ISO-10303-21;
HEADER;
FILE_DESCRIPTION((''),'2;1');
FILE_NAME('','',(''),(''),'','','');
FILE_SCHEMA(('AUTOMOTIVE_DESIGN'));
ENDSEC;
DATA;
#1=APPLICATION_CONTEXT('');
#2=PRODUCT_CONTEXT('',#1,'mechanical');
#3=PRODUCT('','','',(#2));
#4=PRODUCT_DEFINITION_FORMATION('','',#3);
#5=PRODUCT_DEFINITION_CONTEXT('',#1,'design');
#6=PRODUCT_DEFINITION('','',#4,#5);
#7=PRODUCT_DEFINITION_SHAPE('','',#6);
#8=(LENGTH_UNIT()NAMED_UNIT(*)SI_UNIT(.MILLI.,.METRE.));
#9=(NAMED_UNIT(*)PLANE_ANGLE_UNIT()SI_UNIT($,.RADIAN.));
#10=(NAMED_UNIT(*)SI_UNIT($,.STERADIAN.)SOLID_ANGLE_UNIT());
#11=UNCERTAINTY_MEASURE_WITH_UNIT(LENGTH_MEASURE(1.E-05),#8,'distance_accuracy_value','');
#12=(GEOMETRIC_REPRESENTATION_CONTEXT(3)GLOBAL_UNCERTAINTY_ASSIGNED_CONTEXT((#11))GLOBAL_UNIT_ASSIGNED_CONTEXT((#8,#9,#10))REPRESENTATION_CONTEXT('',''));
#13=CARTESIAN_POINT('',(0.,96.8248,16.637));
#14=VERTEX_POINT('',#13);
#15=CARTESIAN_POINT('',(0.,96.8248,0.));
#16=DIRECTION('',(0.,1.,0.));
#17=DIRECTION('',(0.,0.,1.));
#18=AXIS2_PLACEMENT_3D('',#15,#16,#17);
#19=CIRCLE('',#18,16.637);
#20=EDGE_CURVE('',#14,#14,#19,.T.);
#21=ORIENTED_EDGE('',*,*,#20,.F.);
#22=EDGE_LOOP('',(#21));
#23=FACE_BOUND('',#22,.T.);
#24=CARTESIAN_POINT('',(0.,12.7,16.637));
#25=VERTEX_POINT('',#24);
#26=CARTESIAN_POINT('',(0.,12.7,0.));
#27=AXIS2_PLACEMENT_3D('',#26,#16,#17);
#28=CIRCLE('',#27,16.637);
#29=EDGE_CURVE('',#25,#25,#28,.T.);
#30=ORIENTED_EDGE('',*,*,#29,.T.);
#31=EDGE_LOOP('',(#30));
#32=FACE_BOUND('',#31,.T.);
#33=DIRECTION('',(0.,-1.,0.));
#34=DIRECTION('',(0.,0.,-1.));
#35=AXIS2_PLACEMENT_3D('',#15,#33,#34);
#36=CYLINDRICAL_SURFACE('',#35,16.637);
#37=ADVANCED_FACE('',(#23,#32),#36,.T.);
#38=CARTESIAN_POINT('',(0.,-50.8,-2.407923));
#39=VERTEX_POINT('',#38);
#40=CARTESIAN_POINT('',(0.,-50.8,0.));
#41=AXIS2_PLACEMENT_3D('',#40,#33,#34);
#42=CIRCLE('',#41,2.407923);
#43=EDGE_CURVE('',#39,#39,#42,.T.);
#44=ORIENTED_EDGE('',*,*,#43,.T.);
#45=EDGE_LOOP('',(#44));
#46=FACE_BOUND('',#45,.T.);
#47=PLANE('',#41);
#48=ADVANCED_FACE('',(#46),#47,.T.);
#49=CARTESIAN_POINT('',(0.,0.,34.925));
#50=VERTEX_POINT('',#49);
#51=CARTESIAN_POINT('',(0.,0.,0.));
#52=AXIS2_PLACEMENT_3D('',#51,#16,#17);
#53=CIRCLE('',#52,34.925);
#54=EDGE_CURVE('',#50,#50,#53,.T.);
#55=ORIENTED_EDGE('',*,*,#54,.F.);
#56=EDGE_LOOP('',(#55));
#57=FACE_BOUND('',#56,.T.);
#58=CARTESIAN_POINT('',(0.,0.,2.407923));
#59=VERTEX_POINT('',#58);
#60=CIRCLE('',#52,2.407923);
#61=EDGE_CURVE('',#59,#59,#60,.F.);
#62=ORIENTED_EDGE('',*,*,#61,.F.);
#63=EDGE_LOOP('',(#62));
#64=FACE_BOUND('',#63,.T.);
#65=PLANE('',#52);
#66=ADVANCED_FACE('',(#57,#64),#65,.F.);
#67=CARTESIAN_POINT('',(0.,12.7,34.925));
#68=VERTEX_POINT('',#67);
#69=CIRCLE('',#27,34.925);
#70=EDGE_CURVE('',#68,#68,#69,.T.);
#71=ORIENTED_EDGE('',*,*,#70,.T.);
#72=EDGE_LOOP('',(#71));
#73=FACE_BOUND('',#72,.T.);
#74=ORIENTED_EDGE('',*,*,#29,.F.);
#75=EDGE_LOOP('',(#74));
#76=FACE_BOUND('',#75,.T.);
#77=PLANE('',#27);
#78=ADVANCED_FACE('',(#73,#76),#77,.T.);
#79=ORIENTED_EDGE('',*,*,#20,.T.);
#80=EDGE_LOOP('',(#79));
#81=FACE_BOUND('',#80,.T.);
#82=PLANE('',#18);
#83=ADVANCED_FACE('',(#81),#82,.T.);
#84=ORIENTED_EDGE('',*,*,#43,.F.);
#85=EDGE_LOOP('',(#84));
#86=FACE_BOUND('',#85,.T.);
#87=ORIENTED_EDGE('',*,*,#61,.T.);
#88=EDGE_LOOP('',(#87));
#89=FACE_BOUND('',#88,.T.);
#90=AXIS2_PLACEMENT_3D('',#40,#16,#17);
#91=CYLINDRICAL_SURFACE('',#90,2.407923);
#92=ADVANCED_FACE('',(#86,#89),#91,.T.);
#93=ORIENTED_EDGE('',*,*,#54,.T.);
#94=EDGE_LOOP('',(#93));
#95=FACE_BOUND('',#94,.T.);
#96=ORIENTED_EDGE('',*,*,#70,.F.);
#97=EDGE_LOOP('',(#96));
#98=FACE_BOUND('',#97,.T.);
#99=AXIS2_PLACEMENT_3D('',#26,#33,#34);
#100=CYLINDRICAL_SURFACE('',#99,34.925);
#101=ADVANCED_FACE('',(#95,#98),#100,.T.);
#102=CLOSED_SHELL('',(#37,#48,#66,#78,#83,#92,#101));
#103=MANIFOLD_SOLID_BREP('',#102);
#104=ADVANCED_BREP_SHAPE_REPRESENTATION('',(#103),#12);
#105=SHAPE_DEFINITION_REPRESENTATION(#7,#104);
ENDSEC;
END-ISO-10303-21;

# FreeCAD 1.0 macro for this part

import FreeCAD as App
import Part
import Sketcher

V = App.Vector
Q = App.Units.Quantity

doc = App.newDocument("Part")
params = doc.addObject("Spreadsheet::Sheet", "Params")
for row, (alias, value) in enumerate([
    ("sketch1_diameter", "2.75 in"),
    ("pad1_length", "0.5 in"),
    ("sketch2_diameter", "1.31 in"),
    ("pad2_length", "3.312 in"),
    ("pad3_length", "2 in"),
], start=1):
    params.set(f"A{row}", alias)
    params.set(f"B{row}", "=" + value)
    params.setAlias(f"B{row}", alias)

body = doc.addObject("PartDesign::Body", "Body")

# Sketch on XZ plane
sketch1 = body.newObject("Sketcher::SketchObject", "Sketch")
sketch1.AttachmentSupport = (doc.getObject("XZ_Plane"), [""])
sketch1.MapMode = "FlatFace"
sketch1.addGeometry(Part.Circle(V(0, 0, 0), V(0, 0, 1), 35), False)
sketch1.addConstraint([
    Sketcher.Constraint("Coincident", 0, 3, -1, 1),
    Sketcher.Constraint("Diameter", 0, Q("2.75 in")),
])
sketch1.setExpression("Constraints[1]", "Params.sketch1_diameter")
pad1 = body.newObject("PartDesign::Pad", "Pad")
pad1.Profile = sketch1
pad1.setExpression("Length", "Params.pad1_length")
pad1.Reversed = True

# Sketch on XZ plane
sketch2 = body.newObject("Sketcher::SketchObject", "Sketch001")
sketch2.AttachmentSupport = (doc.getObject("XZ_Plane"), [""])
sketch2.MapMode = "FlatFace"
sketch2.AttachmentOffset = App.Placement(V(0, 0, -0.5 * 25.4), App.Rotation())
sketch2.addGeometry(Part.Circle(V(0, 0, 0), V(0, 0, 1), 17), False)
sketch2.addConstraint([
    Sketcher.Constraint("Coincident", 0, 3, -1, 1),
    Sketcher.Constraint("Diameter", 0, Q("1.31 in")),
])
sketch2.setExpression("Constraints[1]", "Params.sketch2_diameter")
pad2 = body.newObject("PartDesign::Pad", "Pad001")
pad2.Profile = sketch2
pad2.setExpression("Length", "Params.pad2_length")
pad2.Reversed = True

# Sketch on XZ plane
sketch3 = body.newObject("Sketcher::SketchObject", "Sketch002")
sketch3.AttachmentSupport = (doc.getObject("XZ_Plane"), [""])
sketch3.MapMode = "FlatFace"
sketch3.addGeometry(Part.Circle(V(0, 0, 0), V(0, 0, 1), 2.4), False)
sketch3.addConstraint([
    Sketcher.Constraint("Coincident", 0, 3, -1, 1),
    Sketcher.Constraint("Diameter", 0, 4.815847),
])
pad3 = body.newObject("PartDesign::Pad", "Pad002")
pad3.Profile = sketch3
pad3.setExpression("Length", "Params.pad3_length")

doc.recompute()
